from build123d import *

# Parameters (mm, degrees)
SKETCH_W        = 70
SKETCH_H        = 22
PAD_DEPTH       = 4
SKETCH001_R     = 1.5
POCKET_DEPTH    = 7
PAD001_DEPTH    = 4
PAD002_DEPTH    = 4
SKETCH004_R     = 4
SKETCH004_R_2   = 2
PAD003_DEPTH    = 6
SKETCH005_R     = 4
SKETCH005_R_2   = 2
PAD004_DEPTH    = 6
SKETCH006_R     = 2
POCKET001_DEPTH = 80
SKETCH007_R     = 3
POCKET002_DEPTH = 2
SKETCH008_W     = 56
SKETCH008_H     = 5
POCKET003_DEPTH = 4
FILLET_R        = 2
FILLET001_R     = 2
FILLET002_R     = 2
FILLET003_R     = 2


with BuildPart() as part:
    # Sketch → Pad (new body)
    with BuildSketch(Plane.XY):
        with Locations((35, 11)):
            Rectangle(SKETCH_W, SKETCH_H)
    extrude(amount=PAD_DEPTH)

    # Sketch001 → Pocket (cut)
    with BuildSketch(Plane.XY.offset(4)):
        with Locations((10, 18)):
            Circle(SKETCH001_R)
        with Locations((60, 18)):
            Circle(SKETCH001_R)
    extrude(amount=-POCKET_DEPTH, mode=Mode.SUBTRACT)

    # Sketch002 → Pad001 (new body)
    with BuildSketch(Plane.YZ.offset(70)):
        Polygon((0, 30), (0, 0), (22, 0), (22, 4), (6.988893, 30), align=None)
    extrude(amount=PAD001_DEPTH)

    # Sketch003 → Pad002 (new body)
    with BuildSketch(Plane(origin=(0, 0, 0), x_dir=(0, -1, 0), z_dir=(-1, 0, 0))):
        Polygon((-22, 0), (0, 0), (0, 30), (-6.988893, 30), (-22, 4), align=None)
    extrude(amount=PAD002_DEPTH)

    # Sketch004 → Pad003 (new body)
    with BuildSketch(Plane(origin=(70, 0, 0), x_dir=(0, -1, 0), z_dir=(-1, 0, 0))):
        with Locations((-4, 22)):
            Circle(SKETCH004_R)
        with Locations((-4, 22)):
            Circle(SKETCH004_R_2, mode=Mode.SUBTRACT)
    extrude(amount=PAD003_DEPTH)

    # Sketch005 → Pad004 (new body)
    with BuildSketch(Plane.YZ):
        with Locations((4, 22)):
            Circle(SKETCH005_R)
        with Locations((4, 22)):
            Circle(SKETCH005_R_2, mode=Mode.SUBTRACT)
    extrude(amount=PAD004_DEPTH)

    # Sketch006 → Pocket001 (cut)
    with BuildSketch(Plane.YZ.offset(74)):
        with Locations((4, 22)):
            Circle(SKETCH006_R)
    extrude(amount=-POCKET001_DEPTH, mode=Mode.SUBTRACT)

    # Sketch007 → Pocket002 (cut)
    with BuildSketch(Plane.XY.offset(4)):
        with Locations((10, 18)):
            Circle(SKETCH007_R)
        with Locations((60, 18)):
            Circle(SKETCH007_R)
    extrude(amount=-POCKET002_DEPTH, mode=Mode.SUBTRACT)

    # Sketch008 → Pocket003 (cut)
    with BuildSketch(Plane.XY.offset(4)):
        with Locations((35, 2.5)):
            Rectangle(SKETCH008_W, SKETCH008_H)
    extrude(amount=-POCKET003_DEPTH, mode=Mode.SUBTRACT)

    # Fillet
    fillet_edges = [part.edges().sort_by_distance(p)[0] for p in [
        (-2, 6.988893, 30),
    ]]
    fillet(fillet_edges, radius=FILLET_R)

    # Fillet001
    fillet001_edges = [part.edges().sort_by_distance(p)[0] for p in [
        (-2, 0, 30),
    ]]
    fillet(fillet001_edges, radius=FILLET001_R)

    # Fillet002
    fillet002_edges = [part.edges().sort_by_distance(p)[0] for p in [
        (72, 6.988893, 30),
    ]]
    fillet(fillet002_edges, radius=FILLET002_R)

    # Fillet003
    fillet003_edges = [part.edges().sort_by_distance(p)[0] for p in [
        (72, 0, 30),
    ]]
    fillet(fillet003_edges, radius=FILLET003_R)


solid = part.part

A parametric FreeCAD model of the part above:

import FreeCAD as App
import Part
import Sketcher

V = App.Vector
Q = App.Units.Quantity


def edges_at(feature, points):
    """Names of the edges that pass closest to the given points."""
    edges = feature.Shape.Edges
    near = lambda p: min(range(len(edges)), key=lambda i: edges[i].distToShape(Part.Vertex(*p))[0])
    return sorted({f"Edge{near(p) + 1}" for p in points})

doc = App.newDocument("Part")
params = doc.addObject("Spreadsheet::Sheet", "Params")
for row, (alias, value) in enumerate([
    ("sketch1_width", "70 mm"),
    ("sketch1_height", "22 mm"),
    ("pad1_length", "4 mm"),
    ("sketch2_diameter", "3 mm"),
    ("pocket1_length", "7 mm"),
    ("sketch3_width", "22 mm"),
    ("sketch3_height", "30 mm"),
    ("sketch3_height2", "4 mm"),
    ("pad2_length", "4 mm"),
    ("sketch4_width", "22 mm"),
    ("sketch4_height", "30 mm"),
    ("sketch4_height2", "4 mm"),
    ("pad3_length", "4 mm"),
    ("sketch5_diameter", "8 mm"),
    ("sketch5_diameter2", "4 mm"),
    ("pad4_length", "6 mm"),
    ("sketch6_diameter", "8 mm"),
    ("sketch6_diameter2", "4 mm"),
    ("pad5_length", "6 mm"),
    ("sketch7_diameter", "4 mm"),
    ("pocket2_length", "80 mm"),
    ("sketch8_diameter", "6 mm"),
    ("pocket3_length", "2 mm"),
    ("sketch9_width", "56 mm"),
    ("sketch9_height", "5 mm"),
    ("pocket4_length", "4 mm"),
    ("fillet_radius", "2 mm"),
    ("fillet2_radius", "2 mm"),
    ("fillet3_radius", "2 mm"),
    ("fillet4_radius", "2 mm"),
], start=1):
    params.set(f"A{row}", alias)
    params.set(f"B{row}", "=" + value)
    params.setAlias(f"B{row}", alias)

body = doc.addObject("PartDesign::Body", "Body")

# Sketch on XY plane
sketch1 = body.newObject("Sketcher::SketchObject", "Sketch")
sketch1.AttachmentSupport = (doc.getObject("XY_Plane"), [""])
sketch1.MapMode = "FlatFace"
sketch1.addGeometry(Part.LineSegment(V(0, 22, 0), V(0, 0, 0)), False)
sketch1.addGeometry(Part.LineSegment(V(0, 0, 0), V(70, 0, 0)), False)
sketch1.addGeometry(Part.LineSegment(V(70, 0, 0), V(70, 22, 0)), False)
sketch1.addGeometry(Part.LineSegment(V(70, 22, 0), V(0, 22, 0)), False)
sketch1.addConstraint(Sketcher.Constraint("Coincident", 0, 2, 1, 1))
sketch1.addConstraint(Sketcher.Constraint("Coincident", 1, 2, 2, 1))
sketch1.addConstraint(Sketcher.Constraint("Coincident", 2, 2, 3, 1))
sketch1.addConstraint(Sketcher.Constraint("Coincident", 3, 2, 0, 1))
sketch1.addConstraint(Sketcher.Constraint("Vertical", 0))
sketch1.addConstraint(Sketcher.Constraint("Horizontal", 1))
sketch1.addConstraint(Sketcher.Constraint("Vertical", 2))
sketch1.addConstraint(Sketcher.Constraint("Horizontal", 3))
sketch1.addConstraint(Sketcher.Constraint("Coincident", 0, 2, -1, 1))
sketch1.addConstraint(Sketcher.Constraint("DistanceX", 1, 1, 1, 2, 70.0))
sketch1.addConstraint(Sketcher.Constraint("DistanceY", 0, 2, 0, 1, 22.0))
sketch1.setExpression("Constraints[9]", "Params.sketch1_width")
sketch1.setExpression("Constraints[10]", "Params.sketch1_height")
pad1 = body.newObject("PartDesign::Pad", "Pad")
pad1.Profile = sketch1
pad1.setExpression("Length", "Params.pad1_length")

# Sketch on XY plane
sketch2 = body.newObject("Sketcher::SketchObject", "Sketch001")
sketch2.AttachmentSupport = (doc.getObject("XY_Plane"), [""])
sketch2.MapMode = "FlatFace"
sketch2.AttachmentOffset = App.Placement(V(0, 0, 4), App.Rotation())
sketch2.addGeometry(Part.Circle(V(10, 18, 0), V(0, 0, 1), 1.5), False)
sketch2.addGeometry(Part.Circle(V(60, 18, 0), V(0, 0, 1), 1.5), False)
sketch2.addConstraint(Sketcher.Constraint("Equal", 0, 1))
sketch2.addConstraint(Sketcher.Constraint("Horizontal", 0, 3, 1, 3))
sketch2.addConstraint(Sketcher.Constraint("Diameter", 0, 3.0))
sketch2.addConstraint(Sketcher.Constraint("DistanceX", -1, 1, 0, 3, 10.0))
sketch2.addConstraint(Sketcher.Constraint("DistanceY", -1, 1, 0, 3, 18.0))
sketch2.addConstraint(Sketcher.Constraint("DistanceX", -1, 1, 1, 3, 60.0))
sketch2.setExpression("Constraints[2]", "Params.sketch2_diameter")
pocket1 = body.newObject("PartDesign::Pocket", "Pocket")
pocket1.Profile = sketch2
pocket1.setExpression("Length", "Params.pocket1_length")

# Sketch on YZ plane
sketch3 = body.newObject("Sketcher::SketchObject", "Sketch002")
sketch3.AttachmentSupport = (doc.getObject("YZ_Plane"), [""])
sketch3.MapMode = "FlatFace"
sketch3.AttachmentOffset = App.Placement(V(0, 0, 70), App.Rotation())
sketch3.addGeometry(Part.LineSegment(V(0, 30, 0), V(0, 0, 0)), False)
sketch3.addGeometry(Part.LineSegment(V(0, 0, 0), V(22, 0, 0)), False)
sketch3.addGeometry(Part.LineSegment(V(22, 0, 0), V(22, 4, 0)), False)
sketch3.addGeometry(Part.LineSegment(V(22, 4, 0), V(7, 30, 0)), False)
sketch3.addGeometry(Part.LineSegment(V(7, 30, 0), V(0, 30, 0)), False)
sketch3.addConstraint(Sketcher.Constraint("Coincident", 0, 2, 1, 1))
sketch3.addConstraint(Sketcher.Constraint("Coincident", 1, 2, 2, 1))
sketch3.addConstraint(Sketcher.Constraint("Coincident", 2, 2, 3, 1))
sketch3.addConstraint(Sketcher.Constraint("Coincident", 3, 2, 4, 1))
sketch3.addConstraint(Sketcher.Constraint("Coincident", 4, 2, 0, 1))
sketch3.addConstraint(Sketcher.Constraint("Vertical", 0))
sketch3.addConstraint(Sketcher.Constraint("Horizontal", 1))
sketch3.addConstraint(Sketcher.Constraint("Vertical", 2))
sketch3.addConstraint(Sketcher.Constraint("Horizontal", 4))
sketch3.addConstraint(Sketcher.Constraint("Coincident", 0, 2, -1, 1))
sketch3.addConstraint(Sketcher.Constraint("DistanceX", 1, 1, 1, 2, 22.0))
sketch3.addConstraint(Sketcher.Constraint("DistanceY", 0, 2, 0, 1, 30.0))
sketch3.addConstraint(Sketcher.Constraint("DistanceY", 2, 1, 2, 2, 4.0))
sketch3.addConstraint(Sketcher.Constraint("Angle", 3, Q("120 deg")))
sketch3.setExpression("Constraints[10]", "Params.sketch3_width")
sketch3.setExpression("Constraints[11]", "Params.sketch3_height")
sketch3.setExpression("Constraints[12]", "Params.sketch3_height2")
pad2 = body.newObject("PartDesign::Pad", "Pad001")
pad2.Profile = sketch3
pad2.setExpression("Length", "Params.pad2_length")

# Sketch on YZ plane
sketch4 = body.newObject("Sketcher::SketchObject", "Sketch003")
sketch4.AttachmentSupport = (doc.getObject("YZ_Plane"), [""])
sketch4.MapMode = "FlatFace"
sketch4.addGeometry(Part.LineSegment(V(22, 0, 0), V(0, 0, 0)), False)
sketch4.addGeometry(Part.LineSegment(V(0, 0, 0), V(0, 30, 0)), False)
sketch4.addGeometry(Part.LineSegment(V(0, 30, 0), V(7, 30, 0)), False)
sketch4.addGeometry(Part.LineSegment(V(7, 30, 0), V(22, 4, 0)), False)
sketch4.addGeometry(Part.LineSegment(V(22, 4, 0), V(22, 0, 0)), False)
sketch4.addConstraint(Sketcher.Constraint("Coincident", 0, 2, 1, 1))
sketch4.addConstraint(Sketcher.Constraint("Coincident", 1, 2, 2, 1))
sketch4.addConstraint(Sketcher.Constraint("Coincident", 2, 2, 3, 1))
sketch4.addConstraint(Sketcher.Constraint("Coincident", 3, 2, 4, 1))
sketch4.addConstraint(Sketcher.Constraint("Coincident", 4, 2, 0, 1))
sketch4.addConstraint(Sketcher.Constraint("Horizontal", 0))
sketch4.addConstraint(Sketcher.Constraint("Vertical", 1))
sketch4.addConstraint(Sketcher.Constraint("Horizontal", 2))
sketch4.addConstraint(Sketcher.Constraint("Vertical", 4))
sketch4.addConstraint(Sketcher.Constraint("Coincident", 0, 2, -1, 1))
sketch4.addConstraint(Sketcher.Constraint("DistanceX", 0, 2, 0, 1, 22.0))
sketch4.addConstraint(Sketcher.Constraint("DistanceY", 1, 1, 1, 2, 30.0))
sketch4.addConstraint(Sketcher.Constraint("DistanceY", 4, 2, 4, 1, 4.0))
sketch4.addConstraint(Sketcher.Constraint("Angle", 3, Q("-60 deg")))
sketch4.setExpression("Constraints[10]", "Params.sketch4_width")
sketch4.setExpression("Constraints[11]", "Params.sketch4_height")
sketch4.setExpression("Constraints[12]", "Params.sketch4_height2")
pad3 = body.newObject("PartDesign::Pad", "Pad002")
pad3.Profile = sketch4
pad3.setExpression("Length", "Params.pad3_length")
pad3.Reversed = True

# Sketch on YZ plane
sketch5 = body.newObject("Sketcher::SketchObject", "Sketch004")
sketch5.AttachmentSupport = (doc.getObject("YZ_Plane"), [""])
sketch5.MapMode = "FlatFace"
sketch5.AttachmentOffset = App.Placement(V(0, 0, 70), App.Rotation())
sketch5.addGeometry(Part.Circle(V(4, 22, 0), V(0, 0, 1), 4), False)
sketch5.addGeometry(Part.Circle(V(4, 22, 0), V(0, 0, 1), 2), False)
sketch5.addConstraint(Sketcher.Constraint("Coincident", 1, 3, 0, 3))
sketch5.addConstraint(Sketcher.Constraint("Diameter", 0, 8.0))
sketch5.addConstraint(Sketcher.Constraint("Diameter", 1, 4.0))
sketch5.addConstraint(Sketcher.Constraint("DistanceX", -1, 1, 0, 3, 4.0))
sketch5.addConstraint(Sketcher.Constraint("DistanceY", -1, 1, 0, 3, 22.0))
sketch5.setExpression("Constraints[1]", "Params.sketch5_diameter")
sketch5.setExpression("Constraints[2]", "Params.sketch5_diameter2")
pad4 = body.newObject("PartDesign::Pad", "Pad003")
pad4.Profile = sketch5
pad4.setExpression("Length", "Params.pad4_length")
pad4.Reversed = True

# Sketch on YZ plane
sketch6 = body.newObject("Sketcher::SketchObject", "Sketch005")
sketch6.AttachmentSupport = (doc.getObject("YZ_Plane"), [""])
sketch6.MapMode = "FlatFace"
sketch6.addGeometry(Part.Circle(V(4, 22, 0), V(0, 0, 1), 4), False)
sketch6.addGeometry(Part.Circle(V(4, 22, 0), V(0, 0, 1), 2), False)
sketch6.addConstraint(Sketcher.Constraint("Coincident", 1, 3, 0, 3))
sketch6.addConstraint(Sketcher.Constraint("Diameter", 0, 8.0))
sketch6.addConstraint(Sketcher.Constraint("Diameter", 1, 4.0))
sketch6.addConstraint(Sketcher.Constraint("DistanceX", -1, 1, 0, 3, 4.0))
sketch6.addConstraint(Sketcher.Constraint("DistanceY", -1, 1, 0, 3, 22.0))
sketch6.setExpression("Constraints[1]", "Params.sketch6_diameter")
sketch6.setExpression("Constraints[2]", "Params.sketch6_diameter2")
pad5 = body.newObject("PartDesign::Pad", "Pad004")
pad5.Profile = sketch6
pad5.setExpression("Length", "Params.pad5_length")

# Sketch on YZ plane
sketch7 = body.newObject("Sketcher::SketchObject", "Sketch006")
sketch7.AttachmentSupport = (doc.getObject("YZ_Plane"), [""])
sketch7.MapMode = "FlatFace"
sketch7.AttachmentOffset = App.Placement(V(0, 0, 74), App.Rotation())
sketch7.addGeometry(Part.Circle(V(4, 22, 0), V(0, 0, 1), 2), False)
sketch7.addConstraint(Sketcher.Constraint("Diameter", 0, 4.0))
sketch7.addConstraint(Sketcher.Constraint("DistanceX", -1, 1, 0, 3, 4.0))
sketch7.addConstraint(Sketcher.Constraint("DistanceY", -1, 1, 0, 3, 22.0))
sketch7.setExpression("Constraints[0]", "Params.sketch7_diameter")
pocket2 = body.newObject("PartDesign::Pocket", "Pocket001")
pocket2.Profile = sketch7
pocket2.setExpression("Length", "Params.pocket2_length")

# Sketch on XY plane
sketch8 = body.newObject("Sketcher::SketchObject", "Sketch007")
sketch8.AttachmentSupport = (doc.getObject("XY_Plane"), [""])
sketch8.MapMode = "FlatFace"
sketch8.AttachmentOffset = App.Placement(V(0, 0, 4), App.Rotation())
sketch8.addGeometry(Part.Circle(V(10, 18, 0), V(0, 0, 1), 3), False)
sketch8.addGeometry(Part.Circle(V(60, 18, 0), V(0, 0, 1), 3), False)
sketch8.addConstraint(Sketcher.Constraint("Equal", 0, 1))
sketch8.addConstraint(Sketcher.Constraint("Horizontal", 0, 3, 1, 3))
sketch8.addConstraint(Sketcher.Constraint("Diameter", 0, 6.0))
sketch8.addConstraint(Sketcher.Constraint("DistanceX", -1, 1, 0, 3, 10.0))
sketch8.addConstraint(Sketcher.Constraint("DistanceY", -1, 1, 0, 3, 18.0))
sketch8.addConstraint(Sketcher.Constraint("DistanceX", -1, 1, 1, 3, 60.0))
sketch8.setExpression("Constraints[2]", "Params.sketch8_diameter")
pocket3 = body.newObject("PartDesign::Pocket", "Pocket002")
pocket3.Profile = sketch8
pocket3.setExpression("Length", "Params.pocket3_length")

# Sketch on XY plane
sketch9 = body.newObject("Sketcher::SketchObject", "Sketch008")
sketch9.AttachmentSupport = (doc.getObject("XY_Plane"), [""])
sketch9.MapMode = "FlatFace"
sketch9.AttachmentOffset = App.Placement(V(0, 0, 4), App.Rotation())
sketch9.addGeometry(Part.LineSegment(V(7, 5, 0), V(7, 0, 0)), False)
sketch9.addGeometry(Part.LineSegment(V(7, 0, 0), V(63, 0, 0)), False)
sketch9.addGeometry(Part.LineSegment(V(63, 0, 0), V(63, 5, 0)), False)
sketch9.addGeometry(Part.LineSegment(V(63, 5, 0), V(7, 5, 0)), False)
sketch9.addConstraint(Sketcher.Constraint("Coincident", 0, 2, 1, 1))
sketch9.addConstraint(Sketcher.Constraint("Coincident", 1, 2, 2, 1))
sketch9.addConstraint(Sketcher.Constraint("Coincident", 2, 2, 3, 1))
sketch9.addConstraint(Sketcher.Constraint("Coincident", 3, 2, 0, 1))
sketch9.addConstraint(Sketcher.Constraint("Vertical", 0))
sketch9.addConstraint(Sketcher.Constraint("Horizontal", 1))
sketch9.addConstraint(Sketcher.Constraint("Vertical", 2))
sketch9.addConstraint(Sketcher.Constraint("Horizontal", 3))
sketch9.addConstraint(Sketcher.Constraint("PointOnObject", 0, 2, -1))
sketch9.addConstraint(Sketcher.Constraint("DistanceX", 1, 1, 1, 2, 56.0))
sketch9.addConstraint(Sketcher.Constraint("DistanceY", 0, 2, 0, 1, 5.0))
sketch9.addConstraint(Sketcher.Constraint("DistanceX", -1, 1, 0, 2, 7.0))
sketch9.setExpression("Constraints[9]", "Params.sketch9_width")
sketch9.setExpression("Constraints[10]", "Params.sketch9_height")
pocket4 = body.newObject("PartDesign::Pocket", "Pocket003")
pocket4.Profile = sketch9
pocket4.setExpression("Length", "Params.pocket4_length")
doc.recompute()

fillet = body.newObject("PartDesign::Fillet", "Fillet")
fillet.Base = (pocket4, edges_at(pocket4, [(-2, 6.989, 30)]))
fillet.setExpression("Radius", "Params.fillet_radius")
doc.recompute()

fillet2 = body.newObject("PartDesign::Fillet", "Fillet001")
fillet2.Base = (fillet, edges_at(fillet, [(-2, 0, 30)]))
fillet2.setExpression("Radius", "Params.fillet2_radius")
doc.recompute()

fillet3 = body.newObject("PartDesign::Fillet", "Fillet002")
fillet3.Base = (fillet2, edges_at(fillet2, [(72, 6.989, 30)]))
fillet3.setExpression("Radius", "Params.fillet3_radius")
doc.recompute()

fillet4 = body.newObject("PartDesign::Fillet", "Fillet003")
fillet4.Base = (fillet3, edges_at(fillet3, [(72, 0, 30)]))
fillet4.setExpression("Radius", "Params.fillet4_radius")

doc.recompute()
